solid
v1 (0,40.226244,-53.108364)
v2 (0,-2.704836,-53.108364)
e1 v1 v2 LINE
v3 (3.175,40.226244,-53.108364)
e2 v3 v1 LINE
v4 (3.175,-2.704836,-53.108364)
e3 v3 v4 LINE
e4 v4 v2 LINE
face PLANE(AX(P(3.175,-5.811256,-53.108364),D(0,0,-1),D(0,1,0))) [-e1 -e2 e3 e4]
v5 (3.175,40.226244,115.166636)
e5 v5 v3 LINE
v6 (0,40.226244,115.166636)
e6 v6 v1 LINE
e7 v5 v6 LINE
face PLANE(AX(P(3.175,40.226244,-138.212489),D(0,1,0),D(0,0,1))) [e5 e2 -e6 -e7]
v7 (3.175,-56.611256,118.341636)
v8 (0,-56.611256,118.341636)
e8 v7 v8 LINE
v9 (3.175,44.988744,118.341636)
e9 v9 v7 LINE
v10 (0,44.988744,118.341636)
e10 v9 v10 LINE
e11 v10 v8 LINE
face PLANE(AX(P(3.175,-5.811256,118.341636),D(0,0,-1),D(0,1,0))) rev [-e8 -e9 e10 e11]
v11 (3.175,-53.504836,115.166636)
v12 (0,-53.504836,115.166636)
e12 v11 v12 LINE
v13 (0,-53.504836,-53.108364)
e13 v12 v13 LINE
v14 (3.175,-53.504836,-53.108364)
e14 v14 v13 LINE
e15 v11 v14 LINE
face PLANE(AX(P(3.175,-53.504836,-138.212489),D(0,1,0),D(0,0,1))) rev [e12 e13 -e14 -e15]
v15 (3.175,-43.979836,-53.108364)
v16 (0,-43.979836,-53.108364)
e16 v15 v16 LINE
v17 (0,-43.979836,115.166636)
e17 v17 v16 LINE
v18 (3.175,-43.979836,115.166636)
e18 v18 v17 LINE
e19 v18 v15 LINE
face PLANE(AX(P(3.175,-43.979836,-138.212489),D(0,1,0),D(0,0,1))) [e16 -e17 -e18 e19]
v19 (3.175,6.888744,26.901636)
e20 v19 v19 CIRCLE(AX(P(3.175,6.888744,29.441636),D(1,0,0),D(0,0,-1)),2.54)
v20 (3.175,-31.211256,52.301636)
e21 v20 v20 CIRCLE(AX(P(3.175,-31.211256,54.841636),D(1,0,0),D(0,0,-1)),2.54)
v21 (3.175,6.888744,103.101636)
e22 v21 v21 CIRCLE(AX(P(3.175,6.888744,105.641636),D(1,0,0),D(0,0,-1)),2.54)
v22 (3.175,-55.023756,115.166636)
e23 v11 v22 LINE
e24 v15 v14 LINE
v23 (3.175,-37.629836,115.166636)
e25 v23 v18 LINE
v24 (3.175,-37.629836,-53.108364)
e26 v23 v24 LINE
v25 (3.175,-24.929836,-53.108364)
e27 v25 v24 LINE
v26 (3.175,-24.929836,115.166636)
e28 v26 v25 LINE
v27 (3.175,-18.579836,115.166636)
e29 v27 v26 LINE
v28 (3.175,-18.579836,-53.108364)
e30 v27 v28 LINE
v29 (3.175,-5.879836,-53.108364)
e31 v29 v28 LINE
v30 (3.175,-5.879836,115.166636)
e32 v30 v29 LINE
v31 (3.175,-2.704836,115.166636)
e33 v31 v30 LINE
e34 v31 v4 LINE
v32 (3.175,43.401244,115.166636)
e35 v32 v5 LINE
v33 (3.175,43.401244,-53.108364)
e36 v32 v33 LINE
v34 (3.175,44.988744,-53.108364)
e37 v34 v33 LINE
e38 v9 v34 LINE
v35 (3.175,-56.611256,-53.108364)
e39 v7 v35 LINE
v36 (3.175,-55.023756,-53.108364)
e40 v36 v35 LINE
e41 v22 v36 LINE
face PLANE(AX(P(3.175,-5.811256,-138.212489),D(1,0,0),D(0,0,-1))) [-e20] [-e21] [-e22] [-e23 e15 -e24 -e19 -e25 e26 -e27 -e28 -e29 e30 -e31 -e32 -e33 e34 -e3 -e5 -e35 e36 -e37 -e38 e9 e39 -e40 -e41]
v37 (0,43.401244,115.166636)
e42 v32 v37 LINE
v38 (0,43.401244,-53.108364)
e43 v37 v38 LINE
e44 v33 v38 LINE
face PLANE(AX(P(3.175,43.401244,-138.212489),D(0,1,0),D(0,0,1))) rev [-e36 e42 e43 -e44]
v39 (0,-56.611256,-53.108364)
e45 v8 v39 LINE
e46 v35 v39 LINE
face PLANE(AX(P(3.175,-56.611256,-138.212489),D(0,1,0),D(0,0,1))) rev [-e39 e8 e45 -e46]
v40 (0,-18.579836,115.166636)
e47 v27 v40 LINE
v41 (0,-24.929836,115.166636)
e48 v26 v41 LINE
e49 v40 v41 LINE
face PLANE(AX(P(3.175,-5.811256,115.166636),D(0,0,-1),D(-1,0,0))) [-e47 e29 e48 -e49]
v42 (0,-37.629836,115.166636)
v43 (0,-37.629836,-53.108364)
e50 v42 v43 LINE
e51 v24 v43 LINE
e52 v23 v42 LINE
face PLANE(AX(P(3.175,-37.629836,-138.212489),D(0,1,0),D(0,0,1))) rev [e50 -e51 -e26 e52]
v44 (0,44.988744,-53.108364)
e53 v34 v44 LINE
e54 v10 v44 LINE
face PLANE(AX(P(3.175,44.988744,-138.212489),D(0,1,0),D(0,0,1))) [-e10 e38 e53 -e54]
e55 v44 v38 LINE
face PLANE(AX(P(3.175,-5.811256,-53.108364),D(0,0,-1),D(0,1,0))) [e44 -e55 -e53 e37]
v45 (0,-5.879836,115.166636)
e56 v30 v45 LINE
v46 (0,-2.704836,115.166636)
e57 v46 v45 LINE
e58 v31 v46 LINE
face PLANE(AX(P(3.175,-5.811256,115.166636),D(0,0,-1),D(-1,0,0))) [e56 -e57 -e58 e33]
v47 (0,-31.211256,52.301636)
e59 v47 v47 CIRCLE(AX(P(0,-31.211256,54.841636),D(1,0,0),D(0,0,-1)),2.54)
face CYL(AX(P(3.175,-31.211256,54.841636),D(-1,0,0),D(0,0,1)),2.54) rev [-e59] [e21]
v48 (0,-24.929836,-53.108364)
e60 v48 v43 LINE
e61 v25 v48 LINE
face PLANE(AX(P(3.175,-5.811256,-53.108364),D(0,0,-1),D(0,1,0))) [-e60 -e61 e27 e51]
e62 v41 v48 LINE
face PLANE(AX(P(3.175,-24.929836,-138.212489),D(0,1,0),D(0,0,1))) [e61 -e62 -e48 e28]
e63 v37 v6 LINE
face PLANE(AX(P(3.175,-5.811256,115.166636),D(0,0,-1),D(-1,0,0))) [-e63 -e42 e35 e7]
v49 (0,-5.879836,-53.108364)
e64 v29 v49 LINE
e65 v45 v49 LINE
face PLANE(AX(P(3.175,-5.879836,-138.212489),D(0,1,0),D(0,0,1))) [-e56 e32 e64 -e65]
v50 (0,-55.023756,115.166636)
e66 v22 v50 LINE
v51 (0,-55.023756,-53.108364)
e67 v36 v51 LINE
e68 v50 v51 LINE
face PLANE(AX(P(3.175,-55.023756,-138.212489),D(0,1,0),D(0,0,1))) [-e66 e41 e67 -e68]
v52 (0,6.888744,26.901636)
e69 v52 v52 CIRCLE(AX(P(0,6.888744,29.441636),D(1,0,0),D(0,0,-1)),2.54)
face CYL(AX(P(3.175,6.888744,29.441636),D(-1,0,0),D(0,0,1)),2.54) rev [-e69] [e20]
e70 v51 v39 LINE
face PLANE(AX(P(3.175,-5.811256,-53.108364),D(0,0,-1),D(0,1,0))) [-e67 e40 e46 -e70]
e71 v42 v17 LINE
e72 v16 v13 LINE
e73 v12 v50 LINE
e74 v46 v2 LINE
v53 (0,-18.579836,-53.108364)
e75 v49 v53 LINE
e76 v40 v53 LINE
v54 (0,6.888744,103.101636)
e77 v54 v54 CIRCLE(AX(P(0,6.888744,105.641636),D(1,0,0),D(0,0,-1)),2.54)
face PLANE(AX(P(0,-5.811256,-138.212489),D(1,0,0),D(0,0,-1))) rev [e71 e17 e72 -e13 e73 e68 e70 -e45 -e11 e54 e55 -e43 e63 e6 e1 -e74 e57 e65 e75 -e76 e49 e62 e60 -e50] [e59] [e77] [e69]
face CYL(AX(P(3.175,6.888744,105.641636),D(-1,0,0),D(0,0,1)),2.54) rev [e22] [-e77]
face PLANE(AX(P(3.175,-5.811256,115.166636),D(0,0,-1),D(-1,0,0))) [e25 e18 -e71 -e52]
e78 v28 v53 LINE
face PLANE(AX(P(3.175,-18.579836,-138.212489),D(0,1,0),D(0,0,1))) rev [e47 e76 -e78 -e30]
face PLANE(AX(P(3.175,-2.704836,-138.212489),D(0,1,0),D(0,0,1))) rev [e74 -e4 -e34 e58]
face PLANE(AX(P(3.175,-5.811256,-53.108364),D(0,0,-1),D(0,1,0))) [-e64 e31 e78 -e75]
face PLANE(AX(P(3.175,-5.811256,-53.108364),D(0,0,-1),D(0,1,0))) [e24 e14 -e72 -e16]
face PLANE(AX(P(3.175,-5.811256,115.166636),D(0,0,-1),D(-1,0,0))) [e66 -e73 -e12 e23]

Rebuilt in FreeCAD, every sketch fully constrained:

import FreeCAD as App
import Part
import Sketcher

V = App.Vector
Q = App.Units.Quantity

doc = App.newDocument("Part")
body = doc.addObject("PartDesign::Body", "Body")

sketch1 = doc.addObject("Sketcher::SketchObject", "Sketch")
body.addObject(sketch1)
sketch1.AttachmentSupport = (doc.YZ_Plane, [""])
sketch1.MapMode = "FlatFace"
sketch1.addGeometry([
    Part.LineSegment(V(44.988744, -53.108364, 0), V(44.988744, 118.341636, 0)),
    Part.LineSegment(V(44.988744, 118.341636, 0), V(-56.611256, 118.341636, 0)),
    Part.LineSegment(V(-56.611256, 118.341636, 0), V(-56.611256, -53.108364, 0)),
    Part.LineSegment(V(-56.611256, -53.108364, 0), V(-55.023756, -53.108364, 0)),
    Part.LineSegment(V(-55.023756, -53.108364, 0), V(-55.023756, 115.166636, 0)),
    Part.LineSegment(V(-55.023756, 115.166636, 0), V(-53.504836, 115.166636, 0)),
    Part.LineSegment(V(-53.504836, 115.166636, 0), V(-53.504836, -53.108364, 0)),
    Part.LineSegment(V(-53.504836, -53.108364, 0), V(-43.979836, -53.108364, 0)),
    Part.LineSegment(V(-43.979836, -53.108364, 0), V(-43.979836, 115.166636, 0)),
    Part.LineSegment(V(-43.979836, 115.166636, 0), V(-37.629836, 115.166636, 0)),
    Part.LineSegment(V(-37.629836, 115.166636, 0), V(-37.629836, -53.108364, 0)),
    Part.LineSegment(V(-37.629836, -53.108364, 0), V(-24.929836, -53.108364, 0)),
    Part.LineSegment(V(-24.929836, -53.108364, 0), V(-24.929836, 115.166636, 0)),
    Part.LineSegment(V(-24.929836, 115.166636, 0), V(-18.579836, 115.166636, 0)),
    Part.LineSegment(V(-18.579836, 115.166636, 0), V(-18.579836, -53.108364, 0)),
    Part.LineSegment(V(-18.579836, -53.108364, 0), V(-5.879836, -53.108364, 0)),
    Part.LineSegment(V(-5.879836, -53.108364, 0), V(-5.879836, 115.166636, 0)),
    Part.LineSegment(V(-5.879836, 115.166636, 0), V(-2.704836, 115.166636, 0)),
    Part.LineSegment(V(-2.704836, 115.166636, 0), V(-2.704836, -53.108364, 0)),
    Part.LineSegment(V(-2.704836, -53.108364, 0), V(40.226244, -53.108364, 0)),
    Part.LineSegment(V(40.226244, -53.108364, 0), V(40.226244, 115.166636, 0)),
    Part.LineSegment(V(40.226244, 115.166636, 0), V(43.401244, 115.166636, 0)),
    Part.LineSegment(V(43.401244, 115.166636, 0), V(43.401244, -53.108364, 0)),
    Part.LineSegment(V(43.401244, -53.108364, 0), V(44.988744, -53.108364, 0)),
    Part.Circle(V(-31.211256, 54.841636, 0), V(0, 0, 1), 2.54),
    Part.Circle(V(6.888744, 105.641636, 0), V(0, 0, 1), 2.54),
    Part.Circle(V(6.888744, 29.441636, 0), V(0, 0, 1), 2.54),
], False)
sketch1.addConstraint([
    Sketcher.Constraint("Coincident", 0, 2, 1, 1),
    Sketcher.Constraint("Coincident", 1, 2, 2, 1),
    Sketcher.Constraint("Coincident", 2, 2, 3, 1),
    Sketcher.Constraint("Coincident", 3, 2, 4, 1),
    Sketcher.Constraint("Coincident", 4, 2, 5, 1),
    Sketcher.Constraint("Coincident", 5, 2, 6, 1),
    Sketcher.Constraint("Coincident", 6, 2, 7, 1),
    Sketcher.Constraint("Coincident", 7, 2, 8, 1),
    Sketcher.Constraint("Coincident", 8, 2, 9, 1),
    Sketcher.Constraint("Coincident", 9, 2, 10, 1),
    Sketcher.Constraint("Coincident", 10, 2, 11, 1),
    Sketcher.Constraint("Coincident", 11, 2, 12, 1),
    Sketcher.Constraint("Coincident", 12, 2, 13, 1),
    Sketcher.Constraint("Coincident", 13, 2, 14, 1),
    Sketcher.Constraint("Coincident", 14, 2, 15, 1),
    Sketcher.Constraint("Coincident", 15, 2, 16, 1),
    Sketcher.Constraint("Coincident", 16, 2, 17, 1),
    Sketcher.Constraint("Coincident", 17, 2, 18, 1),
    Sketcher.Constraint("Coincident", 18, 2, 19, 1),
    Sketcher.Constraint("Coincident", 19, 2, 20, 1),
    Sketcher.Constraint("Coincident", 20, 2, 21, 1),
    Sketcher.Constraint("Coincident", 21, 2, 22, 1),
    Sketcher.Constraint("Coincident", 22, 2, 23, 1),
    Sketcher.Constraint("Coincident", 23, 2, 0, 1),
    Sketcher.Constraint("Vertical", 0),
    Sketcher.Constraint("Horizontal", 1),
    Sketcher.Constraint("Vertical", 2),
    Sketcher.Constraint("Horizontal", 3),
    Sketcher.Constraint("Vertical", 4),
    Sketcher.Constraint("Horizontal", 5),
    Sketcher.Constraint("Vertical", 6),
    Sketcher.Constraint("Horizontal", 7),
    Sketcher.Constraint("Vertical", 8),
    Sketcher.Constraint("Horizontal", 9),
    Sketcher.Constraint("Vertical", 10),
    Sketcher.Constraint("Horizontal", 11),
    Sketcher.Constraint("Vertical", 12),
    Sketcher.Constraint("Horizontal", 13),
    Sketcher.Constraint("Vertical", 14),
    Sketcher.Constraint("Horizontal", 15),
    Sketcher.Constraint("Vertical", 16),
    Sketcher.Constraint("Horizontal", 17),
    Sketcher.Constraint("Vertical", 18),
    Sketcher.Constraint("Horizontal", 19),
    Sketcher.Constraint("Vertical", 20),
    Sketcher.Constraint("Horizontal", 21),
    Sketcher.Constraint("Vertical", 22),
    Sketcher.Constraint("Horizontal", 23),
    Sketcher.Constraint("Equal", 24, 25),
    Sketcher.Constraint("Equal", 25, 26),
    Sketcher.Constraint("Horizontal", 3, 2, 6, 2),
    Sketcher.Constraint("Horizontal", 5, 2, 8, 2),
    Sketcher.Constraint("Horizontal", 7, 2, 10, 2),
    Sketcher.Constraint("Horizontal", 9, 2, 12, 2),
    Sketcher.Constraint("Horizontal", 11, 2, 14, 2),
    Sketcher.Constraint("Horizontal", 13, 2, 16, 2),
    Sketcher.Constraint("Horizontal", 15, 2, 18, 2),
    Sketcher.Constraint("Horizontal", 17, 2, 20, 2),
    Sketcher.Constraint("Horizontal", 19, 2, 22, 2),
    Sketcher.Constraint("Vertical", 25, 3, 26, 3),
    Sketcher.Constraint("Equal", 9, 13),
    Sketcher.Constraint("Equal", 11, 15),
    Sketcher.Constraint("Equal", 17, 21),
    Sketcher.Constraint("Equal", 3, 23),
    Sketcher.Constraint("Diameter", 24, Q("0.2 in")),
    Sketcher.Constraint("DistanceX", 1, 2, 1, 1, Q("4 in")),
    Sketcher.Constraint("DistanceX", 11, 1, 11, 2, Q("0.5 in")),
    Sketcher.Constraint("DistanceY", 24, 3, 25, 3, Q("2 in")),
    Sketcher.Constraint("DistanceY", 26, 3, 24, 3, Q("1 in")),
    Sketcher.Constraint("DistanceX", 24, 3, 0, 2, Q("3 in")),
    Sketcher.Constraint("DistanceX", 8, 2, 13, 2, Q("1 in")),
    Sketcher.Constraint("DistanceY", 0, 1, 0, 2, Q("6.75 in")),
    Sketcher.Constraint("DistanceX", 24, 3, 25, 3, Q("1.5 in")),
    Sketcher.Constraint("DistanceY", 25, 3, 0, 2, Q("0.5 in")),
    Sketcher.Constraint("DistanceX", 3, 1, 3, 2, Q("0.0625 in")),
    Sketcher.Constraint("DistanceX", 7, 1, 7, 2, Q("0.375 in")),
    Sketcher.Constraint("DistanceX", 17, 1, 17, 2, Q("0.125 in")),
    Sketcher.Constraint("DistanceY", 4, 1, 4, 2, Q("6.625 in")),
    Sketcher.Constraint("DistanceX", 5, 1, 5, 2, Q("0.0598 in")),
    Sketcher.Constraint("DistanceX", 24, 3, -1, 1, 31.211256),
    Sketcher.Constraint("DistanceY", -1, 1, 24, 3, 54.841636),
])
pad1 = doc.addObject("PartDesign::Pad", "Pad")
body.addObject(pad1)
pad1.Profile = sketch1
pad1.Length = Q("0.125 in")

doc.recompute()
